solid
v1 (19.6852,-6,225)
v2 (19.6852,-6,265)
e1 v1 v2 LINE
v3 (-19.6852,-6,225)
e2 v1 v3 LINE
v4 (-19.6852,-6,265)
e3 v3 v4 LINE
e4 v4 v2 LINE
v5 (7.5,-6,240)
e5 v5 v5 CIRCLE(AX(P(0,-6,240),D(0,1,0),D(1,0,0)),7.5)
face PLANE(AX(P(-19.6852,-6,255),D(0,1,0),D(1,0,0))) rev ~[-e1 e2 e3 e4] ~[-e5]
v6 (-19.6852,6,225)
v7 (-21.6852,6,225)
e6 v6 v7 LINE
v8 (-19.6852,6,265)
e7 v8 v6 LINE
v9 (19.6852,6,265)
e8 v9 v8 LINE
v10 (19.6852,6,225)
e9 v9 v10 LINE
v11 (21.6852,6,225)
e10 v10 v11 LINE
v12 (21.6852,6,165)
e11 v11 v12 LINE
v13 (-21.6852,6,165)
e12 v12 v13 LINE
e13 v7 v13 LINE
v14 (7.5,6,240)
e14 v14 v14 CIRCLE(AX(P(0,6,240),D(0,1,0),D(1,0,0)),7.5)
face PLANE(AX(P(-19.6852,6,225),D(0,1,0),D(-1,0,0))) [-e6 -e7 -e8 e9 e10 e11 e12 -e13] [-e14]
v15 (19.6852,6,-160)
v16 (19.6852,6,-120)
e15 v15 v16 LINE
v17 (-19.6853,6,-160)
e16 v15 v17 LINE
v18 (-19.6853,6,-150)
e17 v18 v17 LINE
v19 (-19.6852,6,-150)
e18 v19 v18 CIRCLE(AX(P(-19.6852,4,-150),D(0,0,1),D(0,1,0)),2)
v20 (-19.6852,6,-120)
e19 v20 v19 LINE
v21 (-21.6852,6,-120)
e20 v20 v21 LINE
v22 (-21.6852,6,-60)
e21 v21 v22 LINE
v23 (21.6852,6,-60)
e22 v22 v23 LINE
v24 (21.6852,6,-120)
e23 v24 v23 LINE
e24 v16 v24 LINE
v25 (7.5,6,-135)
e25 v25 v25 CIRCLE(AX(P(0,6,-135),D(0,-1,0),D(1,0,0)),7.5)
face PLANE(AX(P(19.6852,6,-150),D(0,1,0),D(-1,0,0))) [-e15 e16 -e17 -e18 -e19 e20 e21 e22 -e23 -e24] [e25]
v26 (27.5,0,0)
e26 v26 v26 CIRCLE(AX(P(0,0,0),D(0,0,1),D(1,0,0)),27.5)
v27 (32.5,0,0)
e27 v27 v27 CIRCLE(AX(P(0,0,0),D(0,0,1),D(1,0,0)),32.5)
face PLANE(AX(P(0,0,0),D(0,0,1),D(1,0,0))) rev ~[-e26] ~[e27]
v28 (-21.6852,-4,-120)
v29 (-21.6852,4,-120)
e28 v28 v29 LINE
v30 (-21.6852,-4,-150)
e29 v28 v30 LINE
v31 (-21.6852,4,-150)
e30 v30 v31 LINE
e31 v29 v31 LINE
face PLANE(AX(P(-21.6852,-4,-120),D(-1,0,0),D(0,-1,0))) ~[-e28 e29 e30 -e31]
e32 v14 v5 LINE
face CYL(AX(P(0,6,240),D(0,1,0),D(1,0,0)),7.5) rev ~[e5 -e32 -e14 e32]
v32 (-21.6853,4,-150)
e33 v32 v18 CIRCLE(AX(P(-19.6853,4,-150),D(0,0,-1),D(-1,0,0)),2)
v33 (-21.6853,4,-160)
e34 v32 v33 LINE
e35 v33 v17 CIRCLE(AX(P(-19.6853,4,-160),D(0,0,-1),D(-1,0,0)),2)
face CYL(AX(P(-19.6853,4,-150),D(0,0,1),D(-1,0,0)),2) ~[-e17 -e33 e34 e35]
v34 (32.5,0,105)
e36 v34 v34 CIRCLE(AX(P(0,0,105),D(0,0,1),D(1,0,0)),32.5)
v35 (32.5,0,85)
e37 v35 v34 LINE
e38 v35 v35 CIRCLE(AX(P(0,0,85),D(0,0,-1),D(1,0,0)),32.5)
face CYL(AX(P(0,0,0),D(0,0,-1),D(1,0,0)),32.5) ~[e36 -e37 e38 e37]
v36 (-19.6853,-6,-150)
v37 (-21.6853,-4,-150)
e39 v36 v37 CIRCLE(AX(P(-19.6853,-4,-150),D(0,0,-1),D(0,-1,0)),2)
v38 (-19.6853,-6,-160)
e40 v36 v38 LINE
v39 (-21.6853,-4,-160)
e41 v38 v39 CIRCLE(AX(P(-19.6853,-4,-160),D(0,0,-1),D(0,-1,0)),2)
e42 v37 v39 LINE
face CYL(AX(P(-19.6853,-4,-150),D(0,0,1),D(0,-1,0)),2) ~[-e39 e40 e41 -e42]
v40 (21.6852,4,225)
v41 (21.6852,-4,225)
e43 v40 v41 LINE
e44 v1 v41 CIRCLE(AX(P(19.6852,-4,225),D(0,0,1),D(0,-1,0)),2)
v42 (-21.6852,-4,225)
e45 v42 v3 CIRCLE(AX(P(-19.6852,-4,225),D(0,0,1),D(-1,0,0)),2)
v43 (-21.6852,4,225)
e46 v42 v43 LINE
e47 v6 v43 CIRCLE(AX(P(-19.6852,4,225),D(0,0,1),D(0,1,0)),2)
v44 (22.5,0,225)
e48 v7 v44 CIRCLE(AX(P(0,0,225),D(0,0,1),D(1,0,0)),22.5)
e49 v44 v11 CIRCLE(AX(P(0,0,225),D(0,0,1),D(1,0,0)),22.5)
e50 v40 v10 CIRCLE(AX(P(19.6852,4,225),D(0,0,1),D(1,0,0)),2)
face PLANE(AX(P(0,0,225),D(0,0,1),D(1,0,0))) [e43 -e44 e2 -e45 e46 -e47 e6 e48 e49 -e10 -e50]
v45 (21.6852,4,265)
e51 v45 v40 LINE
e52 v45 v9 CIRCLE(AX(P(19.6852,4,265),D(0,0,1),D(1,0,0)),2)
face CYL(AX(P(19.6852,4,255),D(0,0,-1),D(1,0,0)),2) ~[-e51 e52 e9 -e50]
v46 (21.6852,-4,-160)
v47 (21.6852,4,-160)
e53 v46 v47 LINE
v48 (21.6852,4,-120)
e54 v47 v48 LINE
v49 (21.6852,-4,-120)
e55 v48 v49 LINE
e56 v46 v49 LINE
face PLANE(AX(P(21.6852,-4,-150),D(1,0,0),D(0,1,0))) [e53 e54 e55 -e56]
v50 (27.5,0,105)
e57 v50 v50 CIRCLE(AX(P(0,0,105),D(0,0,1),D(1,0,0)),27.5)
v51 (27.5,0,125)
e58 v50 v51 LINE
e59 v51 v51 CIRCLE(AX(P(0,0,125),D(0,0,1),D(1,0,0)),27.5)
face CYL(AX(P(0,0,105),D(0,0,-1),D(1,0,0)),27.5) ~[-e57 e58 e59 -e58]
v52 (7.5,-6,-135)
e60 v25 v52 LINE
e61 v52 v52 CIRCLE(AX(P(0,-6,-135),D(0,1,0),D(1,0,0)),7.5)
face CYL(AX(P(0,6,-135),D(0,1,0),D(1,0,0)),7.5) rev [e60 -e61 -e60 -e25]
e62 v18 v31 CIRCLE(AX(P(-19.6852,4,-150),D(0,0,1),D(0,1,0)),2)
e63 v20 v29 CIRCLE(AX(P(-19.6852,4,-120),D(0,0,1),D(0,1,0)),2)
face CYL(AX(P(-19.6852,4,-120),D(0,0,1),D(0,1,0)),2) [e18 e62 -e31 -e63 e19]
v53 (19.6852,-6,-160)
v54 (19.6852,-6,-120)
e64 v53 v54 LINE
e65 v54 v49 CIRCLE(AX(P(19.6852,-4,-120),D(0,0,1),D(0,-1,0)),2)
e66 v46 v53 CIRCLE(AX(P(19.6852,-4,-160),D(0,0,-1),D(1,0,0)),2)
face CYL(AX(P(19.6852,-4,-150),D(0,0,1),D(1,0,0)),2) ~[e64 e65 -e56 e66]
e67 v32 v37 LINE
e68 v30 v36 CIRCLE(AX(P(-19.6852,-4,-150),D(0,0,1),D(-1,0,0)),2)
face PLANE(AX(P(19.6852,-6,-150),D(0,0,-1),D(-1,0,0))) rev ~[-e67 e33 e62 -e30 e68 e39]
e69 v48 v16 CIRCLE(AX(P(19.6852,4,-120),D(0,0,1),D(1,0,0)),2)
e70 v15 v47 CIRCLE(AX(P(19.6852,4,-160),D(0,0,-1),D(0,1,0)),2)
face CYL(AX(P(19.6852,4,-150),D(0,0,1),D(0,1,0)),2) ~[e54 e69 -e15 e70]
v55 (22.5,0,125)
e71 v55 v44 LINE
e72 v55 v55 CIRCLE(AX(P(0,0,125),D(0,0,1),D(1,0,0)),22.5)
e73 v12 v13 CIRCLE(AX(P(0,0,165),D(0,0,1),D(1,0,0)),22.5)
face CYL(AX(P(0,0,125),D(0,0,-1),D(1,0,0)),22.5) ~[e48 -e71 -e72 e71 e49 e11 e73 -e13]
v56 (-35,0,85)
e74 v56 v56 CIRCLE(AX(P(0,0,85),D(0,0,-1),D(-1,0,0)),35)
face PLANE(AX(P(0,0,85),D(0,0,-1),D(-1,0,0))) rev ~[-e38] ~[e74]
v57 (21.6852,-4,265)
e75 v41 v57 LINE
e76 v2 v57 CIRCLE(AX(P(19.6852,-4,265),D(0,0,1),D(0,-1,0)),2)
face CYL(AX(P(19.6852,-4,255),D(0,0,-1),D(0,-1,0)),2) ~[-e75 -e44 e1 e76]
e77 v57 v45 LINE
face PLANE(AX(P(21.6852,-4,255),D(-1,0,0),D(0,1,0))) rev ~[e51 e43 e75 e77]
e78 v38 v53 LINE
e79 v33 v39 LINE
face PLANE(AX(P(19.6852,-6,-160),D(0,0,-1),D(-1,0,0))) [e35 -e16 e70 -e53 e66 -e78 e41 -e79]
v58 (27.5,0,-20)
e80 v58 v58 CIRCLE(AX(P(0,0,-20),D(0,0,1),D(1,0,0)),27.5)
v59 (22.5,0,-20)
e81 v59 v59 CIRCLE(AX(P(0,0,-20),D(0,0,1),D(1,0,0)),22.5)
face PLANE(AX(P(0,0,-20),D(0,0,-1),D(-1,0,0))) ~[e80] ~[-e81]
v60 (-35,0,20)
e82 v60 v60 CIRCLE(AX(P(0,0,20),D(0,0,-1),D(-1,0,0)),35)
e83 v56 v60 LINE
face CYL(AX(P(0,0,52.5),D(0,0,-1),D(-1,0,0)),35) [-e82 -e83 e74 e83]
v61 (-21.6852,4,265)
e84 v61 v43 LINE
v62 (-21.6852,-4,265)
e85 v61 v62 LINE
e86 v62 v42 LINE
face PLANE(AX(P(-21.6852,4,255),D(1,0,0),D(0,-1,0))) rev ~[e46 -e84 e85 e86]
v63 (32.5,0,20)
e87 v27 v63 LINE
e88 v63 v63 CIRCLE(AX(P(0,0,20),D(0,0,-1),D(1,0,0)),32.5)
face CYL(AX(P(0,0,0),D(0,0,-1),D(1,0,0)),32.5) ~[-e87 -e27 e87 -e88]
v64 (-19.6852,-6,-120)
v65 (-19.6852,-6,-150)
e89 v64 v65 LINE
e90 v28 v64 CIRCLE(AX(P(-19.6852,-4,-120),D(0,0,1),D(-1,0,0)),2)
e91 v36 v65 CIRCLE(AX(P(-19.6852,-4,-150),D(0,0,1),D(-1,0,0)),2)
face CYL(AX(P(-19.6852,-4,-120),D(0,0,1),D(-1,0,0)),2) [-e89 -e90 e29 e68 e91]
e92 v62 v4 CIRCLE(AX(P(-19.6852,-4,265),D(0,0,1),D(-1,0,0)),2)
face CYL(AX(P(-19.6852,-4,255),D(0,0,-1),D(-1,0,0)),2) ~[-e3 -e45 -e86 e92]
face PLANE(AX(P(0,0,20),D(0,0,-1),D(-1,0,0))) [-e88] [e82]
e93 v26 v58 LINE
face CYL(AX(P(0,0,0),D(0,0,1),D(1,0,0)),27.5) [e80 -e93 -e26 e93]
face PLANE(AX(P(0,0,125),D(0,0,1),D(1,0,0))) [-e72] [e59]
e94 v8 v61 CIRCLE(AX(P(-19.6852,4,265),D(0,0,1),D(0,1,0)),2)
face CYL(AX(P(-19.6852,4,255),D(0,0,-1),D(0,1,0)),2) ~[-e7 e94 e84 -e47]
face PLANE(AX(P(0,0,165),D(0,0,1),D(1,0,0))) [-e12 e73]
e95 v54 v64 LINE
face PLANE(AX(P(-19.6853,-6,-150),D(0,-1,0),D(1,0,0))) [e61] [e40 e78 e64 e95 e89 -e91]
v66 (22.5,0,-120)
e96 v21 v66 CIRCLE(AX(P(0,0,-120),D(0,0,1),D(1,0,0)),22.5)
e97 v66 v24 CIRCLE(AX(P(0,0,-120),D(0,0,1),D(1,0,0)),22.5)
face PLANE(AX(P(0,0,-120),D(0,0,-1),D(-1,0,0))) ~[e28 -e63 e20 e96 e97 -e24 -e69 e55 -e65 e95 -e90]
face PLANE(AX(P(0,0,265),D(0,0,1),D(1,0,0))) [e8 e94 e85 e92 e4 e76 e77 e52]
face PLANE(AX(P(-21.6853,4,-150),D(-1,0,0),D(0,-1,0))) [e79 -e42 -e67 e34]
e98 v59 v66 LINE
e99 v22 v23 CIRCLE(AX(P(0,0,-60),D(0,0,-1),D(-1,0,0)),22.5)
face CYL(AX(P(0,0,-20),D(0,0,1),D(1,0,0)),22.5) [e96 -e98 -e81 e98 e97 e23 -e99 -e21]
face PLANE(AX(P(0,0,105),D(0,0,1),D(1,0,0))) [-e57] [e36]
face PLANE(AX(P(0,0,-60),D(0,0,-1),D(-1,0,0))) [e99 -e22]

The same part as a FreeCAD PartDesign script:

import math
import FreeCAD as App
import Part
import Sketcher

V = App.Vector
Q = App.Units.Quantity

doc = App.newDocument("Part")
body = doc.addObject("PartDesign::Body", "Body")

sketch1 = body.newObject("Sketcher::SketchObject", "Sketch")
sketch1.AttachmentSupport = (doc.getObject("XY_Plane"), [""])
sketch1.MapMode = "FlatFace"
sketch1.addGeometry(Part.Circle(V(0, 0, 0), V(0, 0, 1), 32), False)
sketch1.addConstraint(Sketcher.Constraint("Coincident", 0, 3, -1, 1))
sketch1.addConstraint(Sketcher.Constraint("Diameter", 0, Q("65 mm")))
pad1 = body.newObject("PartDesign::Pad", "Pad")
pad1.Profile = sketch1
pad1.Length = 105

sketch2 = body.newObject("Sketcher::SketchObject", "Sketch001")
sketch2.AttachmentSupport = (doc.getObject("XY_Plane"), [""])
sketch2.MapMode = "FlatFace"
sketch2.AttachmentOffset = App.Placement(V(0, 0, 105), App.Rotation())
sketch2.addGeometry(Part.Circle(V(0, 0, 0), V(0, 0, 1), 28), False)
sketch2.addConstraint(Sketcher.Constraint("Coincident", 0, 3, -1, 1))
sketch2.addConstraint(Sketcher.Constraint("Diameter", 0, Q("55 mm")))
pad2 = body.newObject("PartDesign::Pad", "Pad001")
pad2.Profile = sketch2
pad2.Length = 20

sketch3 = body.newObject("Sketcher::SketchObject", "Sketch002")
sketch3.AttachmentSupport = (doc.getObject("XY_Plane"), [""])
sketch3.MapMode = "FlatFace"
sketch3.AttachmentOffset = App.Placement(V(0, 0, 125), App.Rotation())
sketch3.addGeometry(Part.Circle(V(0, 0, 0), V(0, 0, 1), 22), False)
sketch3.addConstraint(Sketcher.Constraint("Coincident", 0, 3, -1, 1))
sketch3.addConstraint(Sketcher.Constraint("Diameter", 0, Q("45 mm")))
pad3 = body.newObject("PartDesign::Pad", "Pad002")
pad3.Profile = sketch3
pad3.Length = 100
doc.recompute()

datumplane = body.newObject("PartDesign::Plane", "DatumPlane")
datumplane.AttachmentSupport = (doc.getObject("XY_Plane"), [""])
datumplane.MapMode = "FlatFace"
datumplane.AttachmentOffset = App.Placement(V(0, 0, 52.5), App.Rotation())
mirrored = body.newObject("PartDesign::Mirrored", "Mirrored")
mirrored.Originals = [pad3, pad2]
mirrored.MirrorPlane = (datumplane, [""])
body.Tip = mirrored

sketch4 = body.newObject("Sketcher::SketchObject", "Sketch003")
sketch4.AttachmentSupport = (doc.getObject("XY_Plane"), [""])
sketch4.MapMode = "FlatFace"
sketch4.AttachmentOffset = App.Placement(V(0, 0, 52.5), App.Rotation())
sketch4.addGeometry(Part.Circle(V(0, 0, 0), V(0, 0, 1), 35), False)
sketch4.addConstraint(Sketcher.Constraint("Coincident", 0, 3, -1, 1))
sketch4.addConstraint(Sketcher.Constraint("Diameter", 0, Q("70 mm")))
pad4 = body.newObject("PartDesign::Pad", "Pad003")
pad4.Profile = sketch4
pad4.Length = 65
pad4.Midplane = True

sketch5 = body.newObject("Sketcher::SketchObject", "Sketch004")
sketch5.AttachmentSupport = (doc.getObject("XY_Plane"), [""])
sketch5.MapMode = "FlatFace"
sketch5.AttachmentOffset = App.Placement(V(0, 0, 225), App.Rotation())
sketch5.addGeometry(Part.LineSegment(V(19.7, 6, 0), V(-19.7, 6, 0)), False)
sketch5.addGeometry(Part.ArcOfCircle(Part.Circle(V(-19.7, 4, 0), V(0, 0, 1), 2), math.radians(90), math.radians(180)), False)
sketch5.addGeometry(Part.LineSegment(V(-21.7, 4, 0), V(-21.7, -4, 0)), False)
sketch5.addGeometry(Part.ArcOfCircle(Part.Circle(V(-19.7, -4, 0), V(0, 0, 1), 2), math.radians(180), math.radians(270)), False)
sketch5.addGeometry(Part.LineSegment(V(-19.7, -6, 0), V(19.7, -6, 0)), False)
sketch5.addGeometry(Part.ArcOfCircle(Part.Circle(V(19.7, -4, 0), V(0, 0, 1), 2), math.radians(-90), math.radians(0)), False)
sketch5.addGeometry(Part.LineSegment(V(21.7, -4, 0), V(21.7, 4, 0)), False)
sketch5.addGeometry(Part.ArcOfCircle(Part.Circle(V(19.7, 4, 0), V(0, 0, 1), 2), math.radians(0), math.radians(90)), False)
sketch5.addConstraint(Sketcher.Constraint("Tangent", 0, 2, 1, 1))
sketch5.addConstraint(Sketcher.Constraint("Tangent", 1, 2, 2, 1))
sketch5.addConstraint(Sketcher.Constraint("Tangent", 2, 2, 3, 1))
sketch5.addConstraint(Sketcher.Constraint("Tangent", 3, 2, 4, 1))
sketch5.addConstraint(Sketcher.Constraint("Tangent", 4, 2, 5, 1))
sketch5.addConstraint(Sketcher.Constraint("Tangent", 5, 2, 6, 1))
sketch5.addConstraint(Sketcher.Constraint("Tangent", 6, 2, 7, 1))
sketch5.addConstraint(Sketcher.Constraint("Tangent", 7, 2, 0, 1))
sketch5.addConstraint(Sketcher.Constraint("Horizontal", 0))
sketch5.addConstraint(Sketcher.Constraint("Vertical", 2))
sketch5.addConstraint(Sketcher.Constraint("Horizontal", 4))
sketch5.addConstraint(Sketcher.Constraint("Vertical", 6))
sketch5.addConstraint(Sketcher.Constraint("Equal", 1, 3))
sketch5.addConstraint(Sketcher.Constraint("Equal", 3, 5))
sketch5.addConstraint(Sketcher.Constraint("Equal", 5, 7))
sketch5.addConstraint(Sketcher.Constraint("Symmetric", 1, 3, 5, 3, -1, 1))
sketch5.addConstraint(Sketcher.Constraint("Radius", 1, Q("2 mm")))
sketch5.addConstraint(Sketcher.Constraint("DistanceY", 3, 2, 0, 2, Q("12 mm")))
sketch5.addConstraint(Sketcher.Constraint("DistanceX", 0, 2, 0, 1, Q("39.3704 mm")))
pad5 = body.newObject("PartDesign::Pad", "Pad004")
pad5.Profile = sketch5
pad5.Length = 30

sketch6 = body.newObject("Sketcher::SketchObject", "Sketch005")
sketch6.AttachmentSupport = (doc.getObject("XZ_Plane"), [""])
sketch6.MapMode = "FlatFace"
sketch6.AttachmentOffset = App.Placement(V(0, 0, -6), App.Rotation())
sketch6.addGeometry(Part.Circle(V(0, 240, 0), V(0, 0, 1), 8), False)
sketch6.addConstraint(Sketcher.Constraint("PointOnObject", 0, 3, -2))
sketch6.addConstraint(Sketcher.Constraint("Diameter", 0, Q("15 mm")))
sketch6.addConstraint(Sketcher.Constraint("DistanceY", -1, 1, 0, 3, Q("240 mm")))
pocket1 = body.newObject("PartDesign::Pocket", "Pocket")
pocket1.Profile = sketch6
pocket1.Type = "ThroughAll"
pocket1.Reversed = True
doc.recompute()

datumplane2 = body.newObject("PartDesign::Plane", "DatumPlane001")
datumplane2.AttachmentSupport = (doc.getObject("XY_Plane"), [""])
datumplane2.MapMode = "FlatFace"
datumplane2.AttachmentOffset = App.Placement(V(0, 0, 52.5), App.Rotation())
mirrored2 = body.newObject("PartDesign::Mirrored", "Mirrored001")
mirrored2.Originals = [pad5, pocket1]
mirrored2.MirrorPlane = (datumplane2, [""])
body.Tip = mirrored2

sketch7 = body.newObject("Sketcher::SketchObject", "Sketch006")
sketch7.AttachmentSupport = (doc.getObject("XY_Plane"), [""])
sketch7.MapMode = "FlatFace"
sketch7.AttachmentOffset = App.Placement(V(0, 0, 255), App.Rotation())
sketch7.addGeometry(Part.ArcOfCircle(Part.Circle(V(-19.7, -4, 0), V(0, 0, 1), 2), math.radians(180), math.radians(270)), False)
sketch7.addGeometry(Part.LineSegment(V(-19.7, -6, 0), V(19.7, -6, 0)), False)
sketch7.addGeometry(Part.ArcOfCircle(Part.Circle(V(19.7, -4, 0), V(0, 0, 1), 2), math.radians(-90), math.radians(0)), False)
sketch7.addGeometry(Part.LineSegment(V(21.7, -4, 0), V(21.7, 4, 0)), False)
sketch7.addGeometry(Part.ArcOfCircle(Part.Circle(V(19.7, 4, 0), V(0, 0, 1), 2), math.radians(0), math.radians(90)), False)
sketch7.addGeometry(Part.LineSegment(V(19.7, 6, 0), V(-19.7, 6, 0)), False)
sketch7.addGeometry(Part.ArcOfCircle(Part.Circle(V(-19.7, 4, 0), V(0, 0, 1), 2), math.radians(90), math.radians(180)), False)
sketch7.addGeometry(Part.LineSegment(V(-21.7, 4, 0), V(-21.7, -4, 0)), False)
sketch7.addConstraint(Sketcher.Constraint("Tangent", 0, 2, 1, 1))
sketch7.addConstraint(Sketcher.Constraint("Tangent", 1, 2, 2, 1))
sketch7.addConstraint(Sketcher.Constraint("Tangent", 2, 2, 3, 1))
sketch7.addConstraint(Sketcher.Constraint("Tangent", 3, 2, 4, 1))
sketch7.addConstraint(Sketcher.Constraint("Tangent", 4, 2, 5, 1))
sketch7.addConstraint(Sketcher.Constraint("Tangent", 5, 2, 6, 1))
sketch7.addConstraint(Sketcher.Constraint("Tangent", 6, 2, 7, 1))
sketch7.addConstraint(Sketcher.Constraint("Tangent", 7, 2, 0, 1))
sketch7.addConstraint(Sketcher.Constraint("Horizontal", 1))
sketch7.addConstraint(Sketcher.Constraint("Vertical", 3))
sketch7.addConstraint(Sketcher.Constraint("Horizontal", 5))
sketch7.addConstraint(Sketcher.Constraint("Vertical", 7))
sketch7.addConstraint(Sketcher.Constraint("Equal", 0, 2))
sketch7.addConstraint(Sketcher.Constraint("Equal", 2, 4))
sketch7.addConstraint(Sketcher.Constraint("Equal", 4, 6))
sketch7.addConstraint(Sketcher.Constraint("Symmetric", 0, 3, 4, 3, -1, 1))
sketch7.addConstraint(Sketcher.Constraint("Radius", 0, Q("2 mm")))
sketch7.addConstraint(Sketcher.Constraint("DistanceY", 3, 1, 3, 2, Q("8 mm")))
sketch7.addConstraint(Sketcher.Constraint("DistanceX", 1, 1, 1, 2, Q("39.3704 mm")))
pad6 = body.newObject("PartDesign::Pad", "Pad005")
pad6.Profile = sketch7
pad6.Length = 10

sketch8 = body.newObject("Sketcher::SketchObject", "Sketch007")
sketch8.AttachmentSupport = (doc.getObject("XY_Plane"), [""])
sketch8.MapMode = "FlatFace"
sketch8.AttachmentOffset = App.Placement(V(0, 0, -150), App.Rotation())
sketch8.addGeometry(Part.LineSegment(V(19.7, -6, 0), V(-19.7, -6, 0)), False)
sketch8.addGeometry(Part.ArcOfCircle(Part.Circle(V(-19.7, -4, 0), V(0, 0, 1), 2), math.radians(180), math.radians(270)), False)
sketch8.addGeometry(Part.LineSegment(V(-21.7, -4, 0), V(-21.7, 4, 0)), False)
sketch8.addGeometry(Part.ArcOfCircle(Part.Circle(V(-19.7, 4, 0), V(0, 0, 1), 2), math.radians(90), math.radians(180)), False)
sketch8.addGeometry(Part.LineSegment(V(-19.7, 6, 0), V(19.7, 6, 0)), False)
sketch8.addGeometry(Part.ArcOfCircle(Part.Circle(V(19.7, 4, 0), V(0, 0, 1), 2), math.radians(0), math.radians(90)), False)
sketch8.addGeometry(Part.LineSegment(V(21.7, 4, 0), V(21.7, -4, 0)), False)
sketch8.addGeometry(Part.ArcOfCircle(Part.Circle(V(19.7, -4, 0), V(0, 0, 1), 2), math.radians(-90), math.radians(0)), False)
sketch8.addConstraint(Sketcher.Constraint("Tangent", 0, 2, 1, 2))
sketch8.addConstraint(Sketcher.Constraint("Tangent", 1, 1, 2, 1))
sketch8.addConstraint(Sketcher.Constraint("Tangent", 2, 2, 3, 2))
sketch8.addConstraint(Sketcher.Constraint("Tangent", 3, 1, 4, 1))
sketch8.addConstraint(Sketcher.Constraint("Tangent", 4, 2, 5, 2))
sketch8.addConstraint(Sketcher.Constraint("Tangent", 5, 1, 6, 1))
sketch8.addConstraint(Sketcher.Constraint("Tangent", 6, 2, 7, 2))
sketch8.addConstraint(Sketcher.Constraint("Tangent", 7, 1, 0, 1))
sketch8.addConstraint(Sketcher.Constraint("Horizontal", 0))
sketch8.addConstraint(Sketcher.Constraint("Vertical", 2))
sketch8.addConstraint(Sketcher.Constraint("Horizontal", 4))
sketch8.addConstraint(Sketcher.Constraint("Vertical", 6))
sketch8.addConstraint(Sketcher.Constraint("Equal", 1, 3))
sketch8.addConstraint(Sketcher.Constraint("Equal", 3, 5))
sketch8.addConstraint(Sketcher.Constraint("Equal", 5, 7))
sketch8.addConstraint(Sketcher.Constraint("Symmetric", 1, 3, 5, 3, -1, 1))
sketch8.addConstraint(Sketcher.Constraint("Radius", 1, Q("2 mm")))
sketch8.addConstraint(Sketcher.Constraint("DistanceY", 2, 1, 2, 2, Q("8 mm")))
sketch8.addConstraint(Sketcher.Constraint("DistanceX", 0, 2, 0, 1, Q("39.3705 mm")))
pad7 = body.newObject("PartDesign::Pad", "Pad006")
pad7.Profile = sketch8
pad7.Length = 10
pad7.Reversed = True

sketch9 = body.newObject("Sketcher::SketchObject", "Sketch008")
sketch9.AttachmentSupport = (doc.getObject("XY_Plane"), [""])
sketch9.MapMode = "FlatFace"
sketch9.AttachmentOffset = App.Placement(V(0, 0, 225), App.Rotation())
sketch9.addGeometry(Part.LineSegment(V(-22, 6, 0), V(22, 6, 0)), False)
sketch9.addGeometry(Part.ArcOfCircle(Part.Circle(V(0, 0, 0), V(0, 0, 1), 22), math.radians(15), math.radians(165)), False)
sketch9.addConstraint(Sketcher.Constraint("Coincident", 0, 1, 1, 2))
sketch9.addConstraint(Sketcher.Constraint("Coincident", 1, 1, 0, 2))
sketch9.addConstraint(Sketcher.Constraint("Horizontal", 0))
sketch9.addConstraint(Sketcher.Constraint("Coincident", 1, 3, -1, 1))
sketch9.addConstraint(Sketcher.Constraint("Radius", 1, Q("22.5 mm")))
sketch9.addConstraint(Sketcher.Constraint("DistanceY", -1, 1, 0, 1, Q("6 mm")))
pocket2 = body.newObject("PartDesign::Pocket", "Pocket001")
pocket2.Profile = sketch9
pocket2.Length = 60

sketch10 = body.newObject("Sketcher::SketchObject", "Sketch009")
sketch10.AttachmentSupport = (doc.getObject("XY_Plane"), [""])
sketch10.MapMode = "FlatFace"
sketch10.AttachmentOffset = App.Placement(V(0, 0, -120), App.Rotation())
sketch10.addGeometry(Part.LineSegment(V(22, 6, 0), V(-22, 6, 0)), False)
sketch10.addGeometry(Part.ArcOfCircle(Part.Circle(V(0, 0, 0), V(0, 0, 1), 22), math.radians(15), math.radians(165)), False)
sketch10.addConstraint(Sketcher.Constraint("Coincident", 0, 1, 1, 1))
sketch10.addConstraint(Sketcher.Constraint("Coincident", 1, 2, 0, 2))
sketch10.addConstraint(Sketcher.Constraint("Horizontal", 0))
sketch10.addConstraint(Sketcher.Constraint("Coincident", 1, 3, -1, 1))
sketch10.addConstraint(Sketcher.Constraint("Radius", 1, Q("22.5 mm")))
sketch10.addConstraint(Sketcher.Constraint("DistanceY", -1, 1, 0, 1, Q("6 mm")))
pocket3 = body.newObject("PartDesign::Pocket", "Pocket002")
pocket3.Profile = sketch10
pocket3.Length = 60
pocket3.Reversed = True

doc.recompute()
